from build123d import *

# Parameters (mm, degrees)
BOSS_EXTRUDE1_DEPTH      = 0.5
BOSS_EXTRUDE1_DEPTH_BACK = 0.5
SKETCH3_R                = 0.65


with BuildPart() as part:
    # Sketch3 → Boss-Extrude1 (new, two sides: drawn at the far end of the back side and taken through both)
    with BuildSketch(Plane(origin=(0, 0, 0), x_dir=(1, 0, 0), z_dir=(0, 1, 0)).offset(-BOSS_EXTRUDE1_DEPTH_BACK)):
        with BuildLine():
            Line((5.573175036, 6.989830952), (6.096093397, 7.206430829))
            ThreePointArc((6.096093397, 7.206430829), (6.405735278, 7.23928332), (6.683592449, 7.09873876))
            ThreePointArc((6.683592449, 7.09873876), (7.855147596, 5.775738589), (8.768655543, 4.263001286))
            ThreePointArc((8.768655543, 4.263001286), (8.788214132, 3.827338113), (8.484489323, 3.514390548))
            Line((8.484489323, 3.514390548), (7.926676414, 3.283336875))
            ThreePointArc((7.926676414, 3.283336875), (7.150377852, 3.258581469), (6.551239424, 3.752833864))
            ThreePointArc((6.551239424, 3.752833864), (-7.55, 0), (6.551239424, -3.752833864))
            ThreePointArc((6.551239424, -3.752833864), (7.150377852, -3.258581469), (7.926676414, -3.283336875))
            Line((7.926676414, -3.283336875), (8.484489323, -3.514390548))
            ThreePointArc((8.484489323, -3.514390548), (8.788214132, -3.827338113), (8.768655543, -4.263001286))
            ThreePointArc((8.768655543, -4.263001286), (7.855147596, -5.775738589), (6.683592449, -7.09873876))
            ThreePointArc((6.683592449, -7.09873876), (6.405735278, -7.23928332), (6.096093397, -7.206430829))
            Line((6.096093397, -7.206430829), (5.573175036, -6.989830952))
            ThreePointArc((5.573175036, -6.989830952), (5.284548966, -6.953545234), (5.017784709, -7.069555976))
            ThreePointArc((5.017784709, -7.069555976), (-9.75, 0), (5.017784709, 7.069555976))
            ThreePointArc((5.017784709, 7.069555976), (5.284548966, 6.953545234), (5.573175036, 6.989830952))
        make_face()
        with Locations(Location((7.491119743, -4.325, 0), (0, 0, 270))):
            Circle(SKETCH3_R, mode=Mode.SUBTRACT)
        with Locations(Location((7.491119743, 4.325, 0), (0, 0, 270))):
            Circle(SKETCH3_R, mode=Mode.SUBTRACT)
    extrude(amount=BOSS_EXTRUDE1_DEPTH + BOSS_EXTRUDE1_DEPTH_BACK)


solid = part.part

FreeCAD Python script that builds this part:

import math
import FreeCAD as App
import Part
import Sketcher

V = App.Vector
Q = App.Units.Quantity

doc = App.newDocument("Part")
body = doc.addObject("PartDesign::Body", "Body")

sketch1 = body.newObject("Sketcher::SketchObject", "Sketch")
sketch1.AttachmentSupport = (doc.getObject("XZ_Plane"), [""])
sketch1.MapMode = "FlatFace"
sketch1.addGeometry(Part.LineSegment(V(6.1, -7.2, 0), V(5.6, -7, 0)), False)
sketch1.addGeometry(Part.ArcOfCircle(Part.Circle(V(5.4, -7.5, 0), V(0, 0, 1), 0.6), math.radians(67), math.radians(129)), False)
sketch1.addGeometry(Part.ArcOfCircle(Part.Circle(V(-0.7, 0, 0), V(0, 0, 1), 9.1), math.radians(51), math.radians(309)), False)
sketch1.addGeometry(Part.ArcOfCircle(Part.Circle(V(5.4, 7.5, 0), V(0, 0, 1), 0.6), math.radians(-129), math.radians(-67)), False)
sketch1.addGeometry(Part.LineSegment(V(5.6, 7, 0), V(6.1, 7.2, 0)), False)
sketch1.addGeometry(Part.ArcOfCircle(Part.Circle(V(6.3, 6.7, 0), V(0, 0, 1), 0.6), math.radians(47), math.radians(112)), False)
sketch1.addGeometry(Part.ArcOfCircle(Part.Circle(V(0, 0, 0), V(0, 0, 1), 9.7), math.radians(26), math.radians(47)), False)
sketch1.addGeometry(Part.ArcOfCircle(Part.Circle(V(8.3, 4, 0), V(0, 0, 1), 0.5), math.radians(-68), math.radians(26)), False)
sketch1.addGeometry(Part.LineSegment(V(8.5, 3.5, 0), V(7.9, 3.3, 0)), False)
sketch1.addGeometry(Part.ArcOfCircle(Part.Circle(V(7.5, 4.3, 0), V(0, 0, 1), 1.1), math.radians(-150), math.radians(-68)), False)
sketch1.addGeometry(Part.ArcOfCircle(Part.Circle(V(0, 0, 0), V(0, 0, 1), 7.5), math.radians(30), math.radians(330)), False)
sketch1.addGeometry(Part.ArcOfCircle(Part.Circle(V(7.5, -4.3, 0), V(0, 0, 1), 1.1), math.radians(68), math.radians(150)), False)
sketch1.addGeometry(Part.LineSegment(V(7.9, -3.3, 0), V(8.5, -3.5, 0)), False)
sketch1.addGeometry(Part.ArcOfCircle(Part.Circle(V(8.3, -4, 0), V(0, 0, 1), 0.5), math.radians(-26), math.radians(68)), False)
sketch1.addGeometry(Part.ArcOfCircle(Part.Circle(V(0, 0, 0), V(0, 0, 1), 9.7), math.radians(-47), math.radians(-26)), False)
sketch1.addGeometry(Part.ArcOfCircle(Part.Circle(V(6.3, -6.7, 0), V(0, 0, 1), 0.6), math.radians(-112), math.radians(-47)), False)
sketch1.addGeometry(Part.Circle(V(7.5, 4.3, 0), V(0, 0, 1), 0.7), False)
sketch1.addGeometry(Part.Circle(V(7.5, -4.3, 0), V(0, 0, 1), 0.7), False)
sketch1.addConstraint(Sketcher.Constraint("Tangent", 0, 2, 1, 1))
sketch1.addConstraint(Sketcher.Constraint("Tangent", 1, 2, 2, 2))
sketch1.addConstraint(Sketcher.Constraint("Tangent", 2, 1, 3, 1))
sketch1.addConstraint(Sketcher.Constraint("Tangent", 3, 2, 4, 1))
sketch1.addConstraint(Sketcher.Constraint("Tangent", 4, 2, 5, 2))
sketch1.addConstraint(Sketcher.Constraint("Tangent", 5, 1, 6, 2))
sketch1.addConstraint(Sketcher.Constraint("Tangent", 6, 1, 7, 2))
sketch1.addConstraint(Sketcher.Constraint("Tangent", 7, 1, 8, 1))
sketch1.addConstraint(Sketcher.Constraint("Tangent", 8, 2, 9, 2))
sketch1.addConstraint(Sketcher.Constraint("Tangent", 9, 1, 10, 1))
sketch1.addConstraint(Sketcher.Constraint("Tangent", 10, 2, 11, 2))
sketch1.addConstraint(Sketcher.Constraint("Tangent", 11, 1, 12, 1))
sketch1.addConstraint(Sketcher.Constraint("Tangent", 12, 2, 13, 2))
sketch1.addConstraint(Sketcher.Constraint("Tangent", 13, 1, 14, 2))
sketch1.addConstraint(Sketcher.Constraint("Tangent", 14, 1, 15, 2))
sketch1.addConstraint(Sketcher.Constraint("Tangent", 15, 1, 0, 1))
sketch1.addConstraint(Sketcher.Constraint("Coincident", 6, 3, -1, 1))
sketch1.addConstraint(Sketcher.Constraint("Coincident", 10, 3, -1, 1))
sketch1.addConstraint(Sketcher.Constraint("Coincident", 14, 3, -1, 1))
sketch1.addConstraint(Sketcher.Constraint("Equal", 1, 3))
sketch1.addConstraint(Sketcher.Constraint("Equal", 3, 5))
sketch1.addConstraint(Sketcher.Constraint("Equal", 5, 7))
sketch1.addConstraint(Sketcher.Constraint("Equal", 9, 11))
sketch1.addConstraint(Sketcher.Constraint("Equal", 7, 13))
sketch1.addConstraint(Sketcher.Constraint("Equal", 6, 14))
sketch1.addConstraint(Sketcher.Constraint("Equal", 13, 15))
sketch1.addConstraint(Sketcher.Constraint("Equal", 16, 17))
sketch1.addConstraint(Sketcher.Constraint("Symmetric", 1, 3, 3, 3, -1))
sketch1.addConstraint(Sketcher.Constraint("Symmetric", 16, 3, 17, 3, -1))
sketch1.addConstraint(Sketcher.Constraint("Symmetric", 8, 2, 11, 1, -1))
sketch1.addConstraint(Sketcher.Constraint("Parallel", 4, 8))
sketch1.addConstraint(Sketcher.Constraint("Parallel", 0, 12))
sketch1.addConstraint(Sketcher.Constraint("Diameter", 16, 1.3))
sketch1.addConstraint(Sketcher.Constraint("Radius", 9, 1.1))
sketch1.addConstraint(Sketcher.Constraint("Radius", 1, 0.55))
sketch1.addConstraint(Sketcher.Constraint("Radius", 6, 9.75))
sketch1.addConstraint(Sketcher.Constraint("Radius", 10, 7.55))
sketch1.addConstraint(Sketcher.Constraint("Angle", 0, Q("157.5 deg")))
sketch1.addConstraint(Sketcher.Constraint("DistanceY", -1, 1, 16, 3, 4.325))
sketch1.addConstraint(Sketcher.Constraint("DistanceY", -1, 1, 6, 1, 4.263001))
sketch1.addConstraint(Sketcher.Constraint("Radius", 2, 9.076043))
sketch1.addConstraint(Sketcher.Constraint("DistanceX", -1, 1, 1, 3, 5.362699))
sketch1.addConstraint(Sketcher.Constraint("DistanceY", 3, 2, 4, 2, 0.2166))
sketch1.addConstraint(Sketcher.Constraint("DistanceX", -1, 1, 16, 3, 7.49112))
pad1 = body.newObject("PartDesign::Pad", "Pad")
pad1.Profile = sketch1
pad1.Type = "TwoLengths"
pad1.Length = 0.5
pad1.Length2 = 0.5
pad1.Reversed = True

doc.recompute()
